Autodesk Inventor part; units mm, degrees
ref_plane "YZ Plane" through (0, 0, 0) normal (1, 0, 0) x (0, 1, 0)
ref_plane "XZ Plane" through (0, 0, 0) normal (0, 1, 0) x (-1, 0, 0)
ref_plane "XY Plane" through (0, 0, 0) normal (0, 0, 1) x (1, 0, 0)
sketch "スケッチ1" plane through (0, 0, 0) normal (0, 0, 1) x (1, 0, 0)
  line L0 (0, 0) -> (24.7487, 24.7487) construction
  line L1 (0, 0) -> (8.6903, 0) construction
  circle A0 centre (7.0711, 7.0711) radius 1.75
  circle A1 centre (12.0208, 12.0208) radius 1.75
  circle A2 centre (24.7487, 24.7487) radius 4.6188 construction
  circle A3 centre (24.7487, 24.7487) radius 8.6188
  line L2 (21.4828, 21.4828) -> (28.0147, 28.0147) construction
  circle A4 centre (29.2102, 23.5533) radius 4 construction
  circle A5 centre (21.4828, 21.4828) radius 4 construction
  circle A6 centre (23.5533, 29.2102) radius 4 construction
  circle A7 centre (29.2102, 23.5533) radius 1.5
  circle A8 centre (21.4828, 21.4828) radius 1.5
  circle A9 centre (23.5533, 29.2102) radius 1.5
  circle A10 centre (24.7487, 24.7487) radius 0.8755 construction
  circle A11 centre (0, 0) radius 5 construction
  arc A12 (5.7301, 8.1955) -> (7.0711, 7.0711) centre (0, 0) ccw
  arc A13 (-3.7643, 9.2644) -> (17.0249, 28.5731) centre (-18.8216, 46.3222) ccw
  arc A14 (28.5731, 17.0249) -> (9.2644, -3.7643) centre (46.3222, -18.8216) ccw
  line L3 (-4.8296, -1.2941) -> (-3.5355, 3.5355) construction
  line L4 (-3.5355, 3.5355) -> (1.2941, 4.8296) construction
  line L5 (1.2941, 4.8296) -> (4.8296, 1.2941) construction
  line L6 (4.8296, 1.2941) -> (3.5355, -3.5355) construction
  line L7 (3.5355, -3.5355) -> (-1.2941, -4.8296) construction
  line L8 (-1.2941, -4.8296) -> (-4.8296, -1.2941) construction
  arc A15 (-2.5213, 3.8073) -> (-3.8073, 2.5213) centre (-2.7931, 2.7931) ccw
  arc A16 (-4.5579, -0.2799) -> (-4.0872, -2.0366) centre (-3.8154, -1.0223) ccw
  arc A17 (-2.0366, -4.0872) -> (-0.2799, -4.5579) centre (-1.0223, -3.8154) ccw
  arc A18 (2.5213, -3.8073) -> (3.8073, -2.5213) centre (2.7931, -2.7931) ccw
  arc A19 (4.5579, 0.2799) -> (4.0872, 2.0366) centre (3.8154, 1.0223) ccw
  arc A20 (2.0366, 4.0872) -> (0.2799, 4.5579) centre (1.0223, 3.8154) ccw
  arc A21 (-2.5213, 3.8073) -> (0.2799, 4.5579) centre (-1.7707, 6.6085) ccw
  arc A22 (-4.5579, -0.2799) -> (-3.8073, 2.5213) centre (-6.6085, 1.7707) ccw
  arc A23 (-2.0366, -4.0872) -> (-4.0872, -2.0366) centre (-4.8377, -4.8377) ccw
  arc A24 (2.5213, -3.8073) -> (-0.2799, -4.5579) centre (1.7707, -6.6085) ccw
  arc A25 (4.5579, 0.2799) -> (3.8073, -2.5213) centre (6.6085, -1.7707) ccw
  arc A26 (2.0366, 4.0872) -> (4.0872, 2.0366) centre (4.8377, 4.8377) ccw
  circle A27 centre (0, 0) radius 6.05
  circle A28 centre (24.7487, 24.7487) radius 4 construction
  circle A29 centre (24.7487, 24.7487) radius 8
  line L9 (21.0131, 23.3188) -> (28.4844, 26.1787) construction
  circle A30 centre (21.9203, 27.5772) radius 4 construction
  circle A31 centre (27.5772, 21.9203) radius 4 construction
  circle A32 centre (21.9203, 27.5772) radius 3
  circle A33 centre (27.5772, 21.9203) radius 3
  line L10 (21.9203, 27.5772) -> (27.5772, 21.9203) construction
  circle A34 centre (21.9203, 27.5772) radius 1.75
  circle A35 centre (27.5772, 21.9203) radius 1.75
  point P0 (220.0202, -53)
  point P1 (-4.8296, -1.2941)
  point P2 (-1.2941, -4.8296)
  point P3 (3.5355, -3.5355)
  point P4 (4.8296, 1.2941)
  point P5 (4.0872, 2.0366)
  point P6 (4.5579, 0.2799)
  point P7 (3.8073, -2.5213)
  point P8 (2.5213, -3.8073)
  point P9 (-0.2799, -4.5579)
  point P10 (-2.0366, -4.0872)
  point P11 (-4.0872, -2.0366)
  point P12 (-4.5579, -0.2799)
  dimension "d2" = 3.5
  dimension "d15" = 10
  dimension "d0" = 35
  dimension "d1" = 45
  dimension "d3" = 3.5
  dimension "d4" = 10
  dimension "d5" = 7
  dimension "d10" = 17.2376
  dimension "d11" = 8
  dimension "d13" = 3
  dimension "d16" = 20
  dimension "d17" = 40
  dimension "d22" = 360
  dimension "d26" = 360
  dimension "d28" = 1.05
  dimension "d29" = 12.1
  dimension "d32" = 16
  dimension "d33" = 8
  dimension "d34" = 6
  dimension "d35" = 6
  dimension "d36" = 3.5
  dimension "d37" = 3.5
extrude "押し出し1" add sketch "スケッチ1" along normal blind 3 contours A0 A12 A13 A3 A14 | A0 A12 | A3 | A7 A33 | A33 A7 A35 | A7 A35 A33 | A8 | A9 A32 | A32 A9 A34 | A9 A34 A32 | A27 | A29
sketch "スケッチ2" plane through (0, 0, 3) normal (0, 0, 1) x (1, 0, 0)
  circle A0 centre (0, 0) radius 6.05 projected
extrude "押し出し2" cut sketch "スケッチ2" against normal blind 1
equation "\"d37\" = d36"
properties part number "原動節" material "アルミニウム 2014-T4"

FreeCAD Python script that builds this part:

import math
import FreeCAD as App
import Part
import Sketcher
Q = App.Units.Quantity

doc = App.newDocument("Part")
body = doc.addObject("PartDesign::Body", "Body")

# Sketch on XY plane
sketch1 = body.newObject("Sketcher::SketchObject", "Sketch")
sketch1.AttachmentSupport = (doc.getObject("XY_Plane"), [""])
sketch1.MapMode = "FlatFace"
sketch1.addGeometry([
    Part.ArcOfCircle(Part.Circle(App.Vector(-18.8216, 46.3222, 0), App.Vector(0, 0, 1), 40.000035), math.radians(-67.887143), math.radians(-26.341935)),  # 0
    Part.ArcOfCircle(Part.Circle(App.Vector(0, 0, 0), App.Vector(0, 0, 1), 10.000013), math.radians(112.112832), math.radians(337.887168)),  # 1
    Part.ArcOfCircle(Part.Circle(App.Vector(46.3222, -18.8216, 0), App.Vector(0, 0, 1), 40.000026), math.radians(116.341935), math.radians(157.887143)),  # 2
    Part.ArcOfCircle(Part.Circle(App.Vector(24.7487, 24.7487, 0), App.Vector(0, 0, 1), 8.6188), math.radians(-63.657923), math.radians(153.657923)),  # 3
    Part.Circle(App.Vector(7.0711, 7.0711, 0), App.Vector(0, 0, 1), 1.75),  # 4
    Part.Circle(App.Vector(12.0208, 12.0208, 0), App.Vector(0, 0, 1), 1.75),  # 5
    Part.ArcOfCircle(Part.Circle(App.Vector(-1.7707, 6.6085, 0), App.Vector(0, 0, 1), 2.900021), math.radians(-105.000395), math.radians(-45)),  # 6
    Part.ArcOfCircle(Part.Circle(App.Vector(1.0223, 3.8154, 0), App.Vector(0, 0, 1), 1.050086), math.radians(15.001008), math.radians(134.996141)),  # 7
    Part.ArcOfCircle(Part.Circle(App.Vector(4.8377, 4.8377, 0), App.Vector(0, 0, 1), 2.899899), math.radians(-165.001002), math.radians(-104.998998)),  # 8
    Part.ArcOfCircle(Part.Circle(App.Vector(3.8154, 1.0223, 0), App.Vector(0, 0, 1), 1.049983), math.radians(-44.996141), math.radians(74.998992)),  # 9
    Part.ArcOfCircle(Part.Circle(App.Vector(6.6085, -1.7707, 0), App.Vector(0, 0, 1), 2.899986), math.radians(135), math.radians(195.000395)),  # 10
    Part.ArcOfCircle(Part.Circle(App.Vector(2.7931, -2.7931, 0), App.Vector(0, 0, 1), 1.049989), math.radians(-105.002421), math.radians(15.002421)),  # 11
    Part.ArcOfCircle(Part.Circle(App.Vector(1.7707, -6.6085, 0), App.Vector(0, 0, 1), 2.900021), math.radians(74.999605), math.radians(135)),  # 12
    Part.ArcOfCircle(Part.Circle(App.Vector(-1.0223, -3.8154, 0), App.Vector(0, 0, 1), 1.050086), math.radians(-164.998992), math.radians(-45.003859)),  # 13
    Part.ArcOfCircle(Part.Circle(App.Vector(-4.8377, -4.8377, 0), App.Vector(0, 0, 1), 2.899899), math.radians(14.998998), math.radians(75.001002)),  # 14
    Part.ArcOfCircle(Part.Circle(App.Vector(-3.8154, -1.0223, 0), App.Vector(0, 0, 1), 1.049983), math.radians(135.003859), math.radians(254.998992)),  # 15
    Part.ArcOfCircle(Part.Circle(App.Vector(-6.6085, 1.7707, 0), App.Vector(0, 0, 1), 2.899986), math.radians(-45), math.radians(15.000395)),  # 16
    Part.ArcOfCircle(Part.Circle(App.Vector(-2.7931, 2.7931, 0), App.Vector(0, 0, 1), 1.049989), math.radians(74.997579), math.radians(195.002421)),  # 17
    Part.Circle(App.Vector(27.5772, 21.9203, 0), App.Vector(0, 0, 1), 1.75),  # 18
    Part.Circle(App.Vector(21.9203, 27.5772, 0), App.Vector(0, 0, 1), 1.75),  # 19
], False)
sketch1.addConstraint([
    Sketcher.Constraint("Tangent", 0, 1, 1, 1),
    Sketcher.Constraint("Tangent", 1, 2, 2, 2),
    Sketcher.Constraint("Tangent", 2, 1, 3, 1),
    Sketcher.Constraint("Tangent", 3, 2, 0, 2),
    Sketcher.Constraint("Tangent", 6, 2, 7, 2),
    Sketcher.Constraint("Tangent", 7, 1, 8, 1),
    Sketcher.Constraint("Tangent", 8, 2, 9, 2),
    Sketcher.Constraint("Tangent", 9, 1, 10, 1),
    Sketcher.Constraint("Tangent", 10, 2, 11, 2),
    Sketcher.Constraint("Tangent", 11, 1, 12, 1),
    Sketcher.Constraint("Tangent", 12, 2, 13, 2),
    Sketcher.Constraint("Tangent", 13, 1, 14, 1),
    Sketcher.Constraint("Tangent", 14, 2, 15, 2),
    Sketcher.Constraint("Tangent", 15, 1, 16, 1),
    Sketcher.Constraint("Tangent", 16, 2, 17, 2),
    Sketcher.Constraint("Tangent", 17, 1, 6, 1),
    Sketcher.Constraint("Coincident", 1, 3, -1, 1),
    Sketcher.Constraint("Equal", 0, 2),
    Sketcher.Constraint("Equal", 4, 5),
    Sketcher.Constraint("Equal", 6, 8),
    Sketcher.Constraint("Equal", 7, 9),
    Sketcher.Constraint("Equal", 8, 10),
    Sketcher.Constraint("Equal", 9, 11),
    Sketcher.Constraint("Equal", 10, 12),
    Sketcher.Constraint("Equal", 11, 13),
    Sketcher.Constraint("Equal", 12, 14),
    Sketcher.Constraint("Equal", 13, 15),
    Sketcher.Constraint("Equal", 14, 16),
    Sketcher.Constraint("Equal", 15, 17),
    Sketcher.Constraint("Equal", 5, 18),
    Sketcher.Constraint("Equal", 18, 19),
    Sketcher.Constraint("Symmetric", 6, 3, 12, 3, -1, 1),
    Sketcher.Constraint("Symmetric", 8, 3, 14, 3, -1, 1),
    Sketcher.Constraint("Symmetric", 10, 3, 16, 3, -1, 1),
    Sketcher.Constraint("Radius", 0, Q("40 mm")),
    Sketcher.Constraint("Radius", 1, Q("10 mm")),
    Sketcher.Constraint("Diameter", 4, Q("3.5 mm")),
    Sketcher.Constraint("Radius", 7, Q("1.05 mm")),
    Sketcher.Constraint("Radius", 3, Q("8.6188 mm")),
    Sketcher.Constraint("Radius", 6, Q("2.9 mm")),
    Sketcher.Constraint("DistanceX", -1, 1, 6, 2, Q("0.28 mm")),
    Sketcher.Constraint("DistanceY", -1, 1, 9, 1, Q("0.28 mm")),
    Sketcher.Constraint("DistanceX", 14, 3, 7, 3, Q("5.86 mm")),
    Sketcher.Constraint("DistanceX", -1, 1, 4, 3, Q("7.071 mm")),
    Sketcher.Constraint("DistanceY", -1, 1, 4, 3, Q("7.071 mm")),
    Sketcher.Constraint("DistanceX", -1, 1, 11, 3, Q("2.793 mm")),
    Sketcher.Constraint("DistanceY", 11, 3, -1, 1, Q("2.793 mm")),
    Sketcher.Constraint("DistanceX", -1, 1, 2, 1, Q("28.573 mm")),
    Sketcher.Constraint("DistanceY", -1, 1, 2, 1, Q("17.025 mm")),
    Sketcher.Constraint("DistanceX", -1, 1, 9, 1, Q("4.558 mm")),
    Sketcher.Constraint("DistanceX", 5, 3, 3, 3, Q("12.728 mm")),
    Sketcher.Constraint("DistanceY", 5, 3, 3, 3, Q("12.728 mm")),
    Sketcher.Constraint("DistanceX", 4, 3, 18, 3, Q("20.506 mm")),
    Sketcher.Constraint("DistanceY", 10, 3, 18, 3, Q("23.691 mm")),
    Sketcher.Constraint("DistanceX", 19, 3, 18, 3, Q("5.657 mm")),
    Sketcher.Constraint("DistanceY", 18, 3, 19, 3, Q("5.657 mm")),
])
pad1 = body.newObject("PartDesign::Pad", "Pad")
pad1.Profile = sketch1
pad1.Length = 3

# Sketch on XY plane
sketch2 = body.newObject("Sketcher::SketchObject", "Sketch001")
sketch2.AttachmentSupport = (doc.getObject("XY_Plane"), [""])
sketch2.MapMode = "FlatFace"
sketch2.AttachmentOffset = App.Placement(App.Vector(0, 0, 3), App.Rotation())
sketch2.addGeometry(Part.Circle(App.Vector(0, 0, 0), App.Vector(0, 0, 1), 6.05), False)
sketch2.addConstraint([
    Sketcher.Constraint("Coincident", 0, 3, -1, 1),
    Sketcher.Constraint("Diameter", 0, Q("12.1 mm")),
])
pocket1 = body.newObject("PartDesign::Pocket", "Pocket")
pocket1.Profile = sketch2
pocket1.Length = 1

doc.recompute()
